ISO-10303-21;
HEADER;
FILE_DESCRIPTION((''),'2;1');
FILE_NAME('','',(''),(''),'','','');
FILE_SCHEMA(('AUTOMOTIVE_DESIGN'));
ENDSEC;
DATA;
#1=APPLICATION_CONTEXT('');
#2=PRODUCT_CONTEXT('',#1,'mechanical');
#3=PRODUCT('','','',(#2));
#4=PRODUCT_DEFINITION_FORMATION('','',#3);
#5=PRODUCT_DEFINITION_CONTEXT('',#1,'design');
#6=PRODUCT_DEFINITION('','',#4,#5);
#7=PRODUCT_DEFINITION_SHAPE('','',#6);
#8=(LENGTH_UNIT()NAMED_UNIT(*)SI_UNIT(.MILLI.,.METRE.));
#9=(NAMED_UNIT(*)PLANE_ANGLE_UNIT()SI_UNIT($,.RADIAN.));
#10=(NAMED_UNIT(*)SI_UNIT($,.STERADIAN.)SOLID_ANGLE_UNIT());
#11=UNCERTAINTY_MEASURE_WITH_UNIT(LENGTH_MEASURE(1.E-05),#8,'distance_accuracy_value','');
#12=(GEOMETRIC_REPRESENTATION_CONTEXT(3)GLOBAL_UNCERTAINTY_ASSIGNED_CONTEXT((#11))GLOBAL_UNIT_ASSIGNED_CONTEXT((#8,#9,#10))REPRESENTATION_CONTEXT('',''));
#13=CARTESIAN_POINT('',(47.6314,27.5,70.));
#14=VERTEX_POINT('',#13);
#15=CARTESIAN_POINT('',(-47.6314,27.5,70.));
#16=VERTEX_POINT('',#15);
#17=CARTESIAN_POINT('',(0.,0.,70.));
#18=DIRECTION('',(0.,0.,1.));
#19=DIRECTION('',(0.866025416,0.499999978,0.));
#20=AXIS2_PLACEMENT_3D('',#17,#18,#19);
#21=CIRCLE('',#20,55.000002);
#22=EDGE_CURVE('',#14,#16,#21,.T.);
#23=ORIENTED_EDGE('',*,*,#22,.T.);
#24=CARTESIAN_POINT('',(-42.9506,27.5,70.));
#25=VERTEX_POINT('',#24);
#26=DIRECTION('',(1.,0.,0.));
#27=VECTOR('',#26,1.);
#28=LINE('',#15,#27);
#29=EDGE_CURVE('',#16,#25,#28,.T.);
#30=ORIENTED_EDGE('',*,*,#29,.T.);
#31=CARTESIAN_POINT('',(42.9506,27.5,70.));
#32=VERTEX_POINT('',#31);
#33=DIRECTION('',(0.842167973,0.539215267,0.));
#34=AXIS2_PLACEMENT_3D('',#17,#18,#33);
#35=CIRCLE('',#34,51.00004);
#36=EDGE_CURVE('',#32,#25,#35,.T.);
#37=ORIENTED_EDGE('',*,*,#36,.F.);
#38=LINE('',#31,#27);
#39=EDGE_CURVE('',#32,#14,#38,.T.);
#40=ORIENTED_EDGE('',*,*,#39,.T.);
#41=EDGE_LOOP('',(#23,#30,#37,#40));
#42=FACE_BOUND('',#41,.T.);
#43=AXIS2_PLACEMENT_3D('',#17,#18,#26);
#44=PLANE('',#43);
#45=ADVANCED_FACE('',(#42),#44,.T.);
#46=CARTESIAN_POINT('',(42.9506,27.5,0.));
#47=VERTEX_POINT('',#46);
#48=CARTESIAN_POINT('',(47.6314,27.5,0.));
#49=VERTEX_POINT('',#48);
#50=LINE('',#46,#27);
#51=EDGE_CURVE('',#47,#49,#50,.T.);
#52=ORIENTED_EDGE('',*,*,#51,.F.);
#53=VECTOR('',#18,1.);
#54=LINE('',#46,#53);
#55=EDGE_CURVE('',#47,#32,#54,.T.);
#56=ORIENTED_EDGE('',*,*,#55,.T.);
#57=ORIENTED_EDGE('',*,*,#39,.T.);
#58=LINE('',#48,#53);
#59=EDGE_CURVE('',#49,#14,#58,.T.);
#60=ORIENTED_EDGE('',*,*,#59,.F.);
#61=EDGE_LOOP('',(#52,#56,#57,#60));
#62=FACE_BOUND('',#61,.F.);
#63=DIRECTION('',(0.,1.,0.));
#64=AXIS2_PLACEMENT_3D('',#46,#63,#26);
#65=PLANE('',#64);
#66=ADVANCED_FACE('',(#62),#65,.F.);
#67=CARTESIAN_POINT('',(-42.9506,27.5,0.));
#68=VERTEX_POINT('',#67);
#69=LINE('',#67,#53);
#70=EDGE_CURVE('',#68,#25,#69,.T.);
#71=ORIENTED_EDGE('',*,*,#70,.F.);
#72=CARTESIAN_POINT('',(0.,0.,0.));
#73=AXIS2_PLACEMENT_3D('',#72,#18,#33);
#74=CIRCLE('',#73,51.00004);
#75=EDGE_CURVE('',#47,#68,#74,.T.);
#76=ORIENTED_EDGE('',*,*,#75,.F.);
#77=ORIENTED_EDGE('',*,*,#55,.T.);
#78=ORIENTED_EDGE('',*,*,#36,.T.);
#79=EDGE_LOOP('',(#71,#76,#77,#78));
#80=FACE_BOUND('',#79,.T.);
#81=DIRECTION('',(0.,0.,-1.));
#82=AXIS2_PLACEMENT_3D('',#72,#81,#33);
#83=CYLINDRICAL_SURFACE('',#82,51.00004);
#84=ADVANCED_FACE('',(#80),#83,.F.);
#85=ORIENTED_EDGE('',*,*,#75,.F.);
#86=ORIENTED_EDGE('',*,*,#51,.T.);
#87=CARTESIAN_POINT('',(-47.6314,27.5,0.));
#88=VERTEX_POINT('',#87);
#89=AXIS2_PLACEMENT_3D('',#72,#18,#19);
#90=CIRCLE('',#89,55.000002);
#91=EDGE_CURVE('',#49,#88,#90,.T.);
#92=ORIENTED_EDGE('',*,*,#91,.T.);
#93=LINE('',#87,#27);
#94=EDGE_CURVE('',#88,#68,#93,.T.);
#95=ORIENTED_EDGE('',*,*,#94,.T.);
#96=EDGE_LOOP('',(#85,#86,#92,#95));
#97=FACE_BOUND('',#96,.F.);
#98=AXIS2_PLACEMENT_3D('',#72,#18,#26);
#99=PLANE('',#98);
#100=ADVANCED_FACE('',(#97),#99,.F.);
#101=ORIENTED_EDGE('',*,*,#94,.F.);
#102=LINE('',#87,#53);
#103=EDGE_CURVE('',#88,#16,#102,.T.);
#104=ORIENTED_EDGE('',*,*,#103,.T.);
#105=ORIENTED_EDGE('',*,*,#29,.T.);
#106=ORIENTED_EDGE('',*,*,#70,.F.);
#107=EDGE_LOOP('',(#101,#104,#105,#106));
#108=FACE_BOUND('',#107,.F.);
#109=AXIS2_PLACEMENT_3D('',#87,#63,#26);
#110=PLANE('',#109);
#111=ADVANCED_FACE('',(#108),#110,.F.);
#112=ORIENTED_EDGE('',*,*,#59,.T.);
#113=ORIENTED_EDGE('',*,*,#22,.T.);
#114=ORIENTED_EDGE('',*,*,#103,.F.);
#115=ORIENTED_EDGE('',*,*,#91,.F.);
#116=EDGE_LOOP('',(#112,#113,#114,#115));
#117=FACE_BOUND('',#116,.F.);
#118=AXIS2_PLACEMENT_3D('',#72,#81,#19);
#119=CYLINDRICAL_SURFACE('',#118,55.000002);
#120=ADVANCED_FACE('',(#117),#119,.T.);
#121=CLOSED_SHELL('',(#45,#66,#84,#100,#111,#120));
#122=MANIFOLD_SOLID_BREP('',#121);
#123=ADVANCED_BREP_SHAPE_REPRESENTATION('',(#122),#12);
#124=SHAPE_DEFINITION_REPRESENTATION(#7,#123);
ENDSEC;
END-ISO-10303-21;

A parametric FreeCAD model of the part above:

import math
import FreeCAD as App
import Part
import Sketcher

V = App.Vector
Q = App.Units.Quantity

doc = App.newDocument("Part")
body = doc.addObject("PartDesign::Body", "Body")

sketch1 = body.newObject("Sketcher::SketchObject", "Sketch")
sketch1.AttachmentSupport = (doc.getObject("XY_Plane"), [""])
sketch1.MapMode = "FlatFace"
sketch1.addGeometry([
    Part.ArcOfCircle(Part.Circle(V(0, 0, 0), V(0, 0, 1), 55.000002), math.radians(29.999999), math.radians(150.000001)),
    Part.LineSegment(V(-47.6314, 27.5, 0), V(-42.9506, 27.5, 0)),
    Part.ArcOfCircle(Part.Circle(V(0, 0, 0), V(0, 0, 1), 51.00004), math.radians(32.630235), math.radians(147.369765)),
    Part.LineSegment(V(42.9506, 27.5, 0), V(47.6314, 27.5, 0)),
], False)
sketch1.addConstraint([
    Sketcher.Constraint("Coincident", 0, 2, 1, 1),
    Sketcher.Constraint("Coincident", 1, 2, 2, 2),
    Sketcher.Constraint("Coincident", 2, 1, 3, 1),
    Sketcher.Constraint("Coincident", 3, 2, 0, 1),
    Sketcher.Constraint("Horizontal", 1),
    Sketcher.Constraint("Horizontal", 3),
    Sketcher.Constraint("Coincident", 0, 3, -1, 1),
    Sketcher.Constraint("Coincident", 2, 3, -1, 1),
    Sketcher.Constraint("Horizontal", 1, 2, 2, 1),
    Sketcher.Constraint("Radius", 2, Q("51 mm")),
    Sketcher.Constraint("Radius", 0, Q("55 mm")),
    Sketcher.Constraint("DistanceY", -1, 1, 0, 2, Q("27.5 mm")),
])
pad1 = body.newObject("PartDesign::Pad", "Pad")
pad1.Profile = sketch1
pad1.Length = 70

doc.recompute()
